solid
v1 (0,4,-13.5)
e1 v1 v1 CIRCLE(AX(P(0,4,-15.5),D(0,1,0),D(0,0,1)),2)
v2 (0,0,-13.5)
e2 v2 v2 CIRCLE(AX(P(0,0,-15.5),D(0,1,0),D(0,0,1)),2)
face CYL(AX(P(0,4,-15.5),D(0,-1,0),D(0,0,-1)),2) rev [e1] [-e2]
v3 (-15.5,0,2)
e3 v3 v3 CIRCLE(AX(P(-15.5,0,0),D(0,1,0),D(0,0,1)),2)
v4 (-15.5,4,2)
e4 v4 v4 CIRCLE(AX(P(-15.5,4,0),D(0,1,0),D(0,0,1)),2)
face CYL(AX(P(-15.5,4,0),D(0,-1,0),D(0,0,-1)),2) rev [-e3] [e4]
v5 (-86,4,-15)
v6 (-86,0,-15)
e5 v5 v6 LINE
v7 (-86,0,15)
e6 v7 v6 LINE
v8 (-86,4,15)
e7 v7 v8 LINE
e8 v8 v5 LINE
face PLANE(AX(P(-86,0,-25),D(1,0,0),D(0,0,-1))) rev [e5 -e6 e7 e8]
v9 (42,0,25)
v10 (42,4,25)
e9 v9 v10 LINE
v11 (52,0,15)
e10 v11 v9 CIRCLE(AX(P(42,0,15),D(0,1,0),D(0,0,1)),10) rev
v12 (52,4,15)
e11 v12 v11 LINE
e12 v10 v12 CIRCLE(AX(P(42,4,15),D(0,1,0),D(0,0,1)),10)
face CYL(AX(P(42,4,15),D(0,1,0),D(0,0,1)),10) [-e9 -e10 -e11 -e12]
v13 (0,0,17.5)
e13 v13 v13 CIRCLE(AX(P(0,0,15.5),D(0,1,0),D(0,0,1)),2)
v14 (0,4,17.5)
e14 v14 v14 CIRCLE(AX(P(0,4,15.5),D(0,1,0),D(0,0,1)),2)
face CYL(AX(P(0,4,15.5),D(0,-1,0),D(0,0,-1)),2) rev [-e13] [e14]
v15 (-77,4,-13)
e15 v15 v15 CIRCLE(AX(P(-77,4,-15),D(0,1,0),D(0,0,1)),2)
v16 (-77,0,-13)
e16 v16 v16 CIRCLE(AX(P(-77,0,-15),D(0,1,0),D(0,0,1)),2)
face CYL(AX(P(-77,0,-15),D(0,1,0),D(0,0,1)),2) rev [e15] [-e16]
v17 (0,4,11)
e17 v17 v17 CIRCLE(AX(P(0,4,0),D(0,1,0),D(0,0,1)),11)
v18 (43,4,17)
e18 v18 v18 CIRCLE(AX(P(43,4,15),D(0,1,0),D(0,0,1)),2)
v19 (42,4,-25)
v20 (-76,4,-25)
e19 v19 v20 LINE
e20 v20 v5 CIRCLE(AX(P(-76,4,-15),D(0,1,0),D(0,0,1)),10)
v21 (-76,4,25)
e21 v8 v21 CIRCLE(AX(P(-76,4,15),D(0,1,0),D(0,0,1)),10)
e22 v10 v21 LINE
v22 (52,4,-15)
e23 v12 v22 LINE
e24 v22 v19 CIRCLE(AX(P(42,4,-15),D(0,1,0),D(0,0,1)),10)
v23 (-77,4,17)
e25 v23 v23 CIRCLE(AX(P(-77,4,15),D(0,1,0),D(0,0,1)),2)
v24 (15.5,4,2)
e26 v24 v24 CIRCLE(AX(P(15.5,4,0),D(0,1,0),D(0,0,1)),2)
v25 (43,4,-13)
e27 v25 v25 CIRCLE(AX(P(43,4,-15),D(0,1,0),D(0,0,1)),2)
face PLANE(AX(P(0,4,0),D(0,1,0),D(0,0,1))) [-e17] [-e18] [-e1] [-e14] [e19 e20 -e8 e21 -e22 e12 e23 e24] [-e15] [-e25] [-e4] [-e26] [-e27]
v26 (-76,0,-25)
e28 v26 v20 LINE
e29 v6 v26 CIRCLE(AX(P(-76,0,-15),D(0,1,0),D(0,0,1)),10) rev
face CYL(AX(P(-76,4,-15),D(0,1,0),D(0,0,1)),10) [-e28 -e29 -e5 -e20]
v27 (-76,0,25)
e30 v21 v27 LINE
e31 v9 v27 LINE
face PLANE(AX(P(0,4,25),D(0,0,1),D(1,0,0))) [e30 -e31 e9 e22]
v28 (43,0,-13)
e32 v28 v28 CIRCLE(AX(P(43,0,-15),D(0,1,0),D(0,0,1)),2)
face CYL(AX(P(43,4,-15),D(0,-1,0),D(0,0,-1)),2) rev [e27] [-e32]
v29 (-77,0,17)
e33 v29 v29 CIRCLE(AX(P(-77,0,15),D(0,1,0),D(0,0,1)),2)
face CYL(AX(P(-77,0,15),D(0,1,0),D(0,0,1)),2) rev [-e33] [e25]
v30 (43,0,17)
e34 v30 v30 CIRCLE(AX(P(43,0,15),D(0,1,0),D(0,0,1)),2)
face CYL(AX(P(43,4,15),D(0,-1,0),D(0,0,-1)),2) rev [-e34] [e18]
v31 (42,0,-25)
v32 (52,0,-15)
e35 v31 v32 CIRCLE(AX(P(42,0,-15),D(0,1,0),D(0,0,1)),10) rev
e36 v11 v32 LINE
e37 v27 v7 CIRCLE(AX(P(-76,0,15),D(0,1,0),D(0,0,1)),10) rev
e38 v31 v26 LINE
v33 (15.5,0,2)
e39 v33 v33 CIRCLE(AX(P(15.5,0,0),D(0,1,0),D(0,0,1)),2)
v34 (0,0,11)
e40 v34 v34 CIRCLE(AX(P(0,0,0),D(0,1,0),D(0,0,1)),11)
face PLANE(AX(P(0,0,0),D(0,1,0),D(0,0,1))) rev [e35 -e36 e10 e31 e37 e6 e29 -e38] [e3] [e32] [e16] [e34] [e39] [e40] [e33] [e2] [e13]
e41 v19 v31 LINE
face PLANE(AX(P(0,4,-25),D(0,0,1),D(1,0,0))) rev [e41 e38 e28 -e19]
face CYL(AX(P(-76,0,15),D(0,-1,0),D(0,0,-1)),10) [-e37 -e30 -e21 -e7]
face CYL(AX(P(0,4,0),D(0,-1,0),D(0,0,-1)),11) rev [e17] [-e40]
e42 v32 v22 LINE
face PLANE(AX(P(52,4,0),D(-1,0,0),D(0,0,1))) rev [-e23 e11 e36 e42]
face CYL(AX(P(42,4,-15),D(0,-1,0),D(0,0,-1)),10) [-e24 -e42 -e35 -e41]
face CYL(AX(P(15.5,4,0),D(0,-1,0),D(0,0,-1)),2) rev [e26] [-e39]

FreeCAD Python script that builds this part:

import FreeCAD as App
import Part
import Sketcher

V = App.Vector
Q = App.Units.Quantity


def edges_at(feature, points):
    """Names of the edges that pass closest to the given points."""
    edges = feature.Shape.Edges
    near = lambda p: min(range(len(edges)), key=lambda i: edges[i].distToShape(Part.Vertex(*p))[0])
    return sorted({f"Edge{near(p) + 1}" for p in points})

doc = App.newDocument("Part")
body = doc.addObject("PartDesign::Body", "Body")

sketch1 = doc.addObject("Sketcher::SketchObject", "Sketch")
body.addObject(sketch1)
sketch1.AttachmentSupport = (doc.XZ_Plane, [""])
sketch1.MapMode = "FlatFace"
sketch1.addGeometry(Part.LineSegment(V(-91, -25, 0), V(-91, 25, 0)), False)
sketch1.addGeometry(Part.LineSegment(V(-91, 25, 0), V(52, 25, 0)), False)
sketch1.addGeometry(Part.LineSegment(V(52, 25, 0), V(52, -25, 0)), False)
sketch1.addGeometry(Part.LineSegment(V(52, -25, 0), V(-91, -25, 0)), False)
sketch1.addGeometry(Part.Circle(V(0, 15.5, 0), V(0, 0, 1), 2), False)
sketch1.addGeometry(Part.Circle(V(43, 15, 0), V(0, 0, 1), 2), False)
sketch1.addGeometry(Part.Circle(V(-15.5, 0, 0), V(0, 0, 1), 2), False)
sketch1.addGeometry(Part.Circle(V(0, 0, 0), V(0, 0, 1), 11), False)
sketch1.addGeometry(Part.Circle(V(0, -15.5, 0), V(0, 0, 1), 2), False)
sketch1.addGeometry(Part.Circle(V(15.5, 0, 0), V(0, 0, 1), 2), False)
sketch1.addGeometry(Part.Circle(V(43, -15, 0), V(0, 0, 1), 2), False)
sketch1.addConstraint(Sketcher.Constraint("Coincident", 0, 2, 1, 1))
sketch1.addConstraint(Sketcher.Constraint("Coincident", 1, 2, 2, 1))
sketch1.addConstraint(Sketcher.Constraint("Coincident", 2, 2, 3, 1))
sketch1.addConstraint(Sketcher.Constraint("Coincident", 3, 2, 0, 1))
sketch1.addConstraint(Sketcher.Constraint("Vertical", 0))
sketch1.addConstraint(Sketcher.Constraint("Horizontal", 1))
sketch1.addConstraint(Sketcher.Constraint("Vertical", 2))
sketch1.addConstraint(Sketcher.Constraint("Horizontal", 3))
sketch1.addConstraint(Sketcher.Constraint("Coincident", 7, 3, -1, 1))
sketch1.addConstraint(Sketcher.Constraint("Equal", 4, 5))
sketch1.addConstraint(Sketcher.Constraint("Equal", 5, 6))
sketch1.addConstraint(Sketcher.Constraint("Equal", 6, 8))
sketch1.addConstraint(Sketcher.Constraint("Equal", 8, 9))
sketch1.addConstraint(Sketcher.Constraint("Equal", 9, 10))
sketch1.addConstraint(Sketcher.Constraint("Symmetric", 4, 3, 8, 3, -1, 1))
sketch1.addConstraint(Sketcher.Constraint("Symmetric", 6, 3, 9, 3, -1, 1))
sketch1.addConstraint(Sketcher.Constraint("Symmetric", 5, 3, 10, 3, -1))
sketch1.addConstraint(Sketcher.Constraint("PointOnObject", 4, 3, -2))
sketch1.addConstraint(Sketcher.Constraint("PointOnObject", 6, 3, -1))
sketch1.addConstraint(Sketcher.Constraint("Diameter", 4, Q("4 mm")))
sketch1.addConstraint(Sketcher.Constraint("Diameter", 7, Q("22 mm")))
sketch1.addConstraint(Sketcher.Constraint("DistanceX", 1, 1, 1, 2, Q("143 mm")))
sketch1.addConstraint(Sketcher.Constraint("DistanceY", 0, 1, 0, 2, Q("50 mm")))
sketch1.addConstraint(Sketcher.Constraint("DistanceX", -1, 1, 5, 3, Q("43 mm")))
sketch1.addConstraint(Sketcher.Constraint("DistanceY", -1, 1, 5, 3, Q("15 mm")))
sketch1.addConstraint(Sketcher.Constraint("DistanceX", 0, 2, -1, 1, Q("91 mm")))
sketch1.addConstraint(Sketcher.Constraint("DistanceY", -1, 1, 0, 2, Q("25 mm")))
sketch1.addConstraint(Sketcher.Constraint("DistanceY", 8, 3, 4, 3, Q("31 mm")))
sketch1.addConstraint(Sketcher.Constraint("DistanceX", 6, 3, 9, 3, Q("31 mm")))
pad1 = doc.addObject("PartDesign::Pad", "Pad")
body.addObject(pad1)
pad1.Profile = sketch1
pad1.Length = 4
pad1.Reversed = True

sketch2 = doc.addObject("Sketcher::SketchObject", "Sketch001")
body.addObject(sketch2)
sketch2.AttachmentSupport = (doc.XZ_Plane, [""])
sketch2.MapMode = "FlatFace"
sketch2.AttachmentOffset = App.Placement(V(0, 0, -4), App.Rotation())
sketch2.addGeometry(Part.LineSegment(V(-91, -25, 0), V(-91, 25, 0)), False)
sketch2.addGeometry(Part.LineSegment(V(-91, 25, 0), V(-86, 25, 0)), False)
sketch2.addGeometry(Part.LineSegment(V(-86, 25, 0), V(-86, -25, 0)), False)
sketch2.addGeometry(Part.LineSegment(V(-86, -25, 0), V(-91, -25, 0)), False)
sketch2.addConstraint(Sketcher.Constraint("Coincident", 0, 2, 1, 1))
sketch2.addConstraint(Sketcher.Constraint("Coincident", 1, 2, 2, 1))
sketch2.addConstraint(Sketcher.Constraint("Coincident", 2, 2, 3, 1))
sketch2.addConstraint(Sketcher.Constraint("Coincident", 3, 2, 0, 1))
sketch2.addConstraint(Sketcher.Constraint("Vertical", 0))
sketch2.addConstraint(Sketcher.Constraint("Horizontal", 1))
sketch2.addConstraint(Sketcher.Constraint("Vertical", 2))
sketch2.addConstraint(Sketcher.Constraint("Horizontal", 3))
sketch2.addConstraint(Sketcher.Constraint("DistanceX", 1, 1, 1, 2, Q("5 mm")))
sketch2.addConstraint(Sketcher.Constraint("DistanceY", 0, 1, 0, 2, Q("50 mm")))
sketch2.addConstraint(Sketcher.Constraint("DistanceX", 0, 2, -1, 1, Q("91 mm")))
sketch2.addConstraint(Sketcher.Constraint("DistanceY", -1, 1, 0, 2, Q("25 mm")))
pocket1 = doc.addObject("PartDesign::Pocket", "Pocket")
body.addObject(pocket1)
pocket1.Profile = sketch2
pocket1.Type = "ThroughAll"
pocket1.Reversed = True

sketch3 = doc.addObject("Sketcher::SketchObject", "Sketch002")
body.addObject(sketch3)
sketch3.AttachmentSupport = (doc.XZ_Plane, [""])
sketch3.MapMode = "FlatFace"
sketch3.AttachmentOffset = App.Placement(V(0, 0, -4), App.Rotation())
sketch3.addGeometry(Part.Circle(V(-77, -15, 0), V(0, 0, 1), 2), False)
sketch3.addGeometry(Part.Circle(V(-77, 15, 0), V(0, 0, 1), 2), False)
sketch3.addConstraint(Sketcher.Constraint("Equal", 0, 1))
sketch3.addConstraint(Sketcher.Constraint("Symmetric", 0, 3, 1, 3, -1))
sketch3.addConstraint(Sketcher.Constraint("Diameter", 0, Q("4 mm")))
sketch3.addConstraint(Sketcher.Constraint("DistanceX", 0, 3, -1, 1, Q("77 mm")))
sketch3.addConstraint(Sketcher.Constraint("DistanceY", 0, 3, -1, 1, Q("15 mm")))
pocket2 = doc.addObject("PartDesign::Pocket", "Pocket001")
body.addObject(pocket2)
pocket2.Profile = sketch3
pocket2.Type = "ThroughAll"
pocket2.Reversed = True
doc.recompute()

fillet = doc.addObject("PartDesign::Fillet", "Fillet")
body.addObject(fillet)
fillet.Base = (pocket2, edges_at(pocket2, [
    (52, 2, -25),
    (52, 2, 25),
    (-86, 2, -25),
    (-86, 2, 25),
]))
fillet.Radius = 10

doc.recompute()
